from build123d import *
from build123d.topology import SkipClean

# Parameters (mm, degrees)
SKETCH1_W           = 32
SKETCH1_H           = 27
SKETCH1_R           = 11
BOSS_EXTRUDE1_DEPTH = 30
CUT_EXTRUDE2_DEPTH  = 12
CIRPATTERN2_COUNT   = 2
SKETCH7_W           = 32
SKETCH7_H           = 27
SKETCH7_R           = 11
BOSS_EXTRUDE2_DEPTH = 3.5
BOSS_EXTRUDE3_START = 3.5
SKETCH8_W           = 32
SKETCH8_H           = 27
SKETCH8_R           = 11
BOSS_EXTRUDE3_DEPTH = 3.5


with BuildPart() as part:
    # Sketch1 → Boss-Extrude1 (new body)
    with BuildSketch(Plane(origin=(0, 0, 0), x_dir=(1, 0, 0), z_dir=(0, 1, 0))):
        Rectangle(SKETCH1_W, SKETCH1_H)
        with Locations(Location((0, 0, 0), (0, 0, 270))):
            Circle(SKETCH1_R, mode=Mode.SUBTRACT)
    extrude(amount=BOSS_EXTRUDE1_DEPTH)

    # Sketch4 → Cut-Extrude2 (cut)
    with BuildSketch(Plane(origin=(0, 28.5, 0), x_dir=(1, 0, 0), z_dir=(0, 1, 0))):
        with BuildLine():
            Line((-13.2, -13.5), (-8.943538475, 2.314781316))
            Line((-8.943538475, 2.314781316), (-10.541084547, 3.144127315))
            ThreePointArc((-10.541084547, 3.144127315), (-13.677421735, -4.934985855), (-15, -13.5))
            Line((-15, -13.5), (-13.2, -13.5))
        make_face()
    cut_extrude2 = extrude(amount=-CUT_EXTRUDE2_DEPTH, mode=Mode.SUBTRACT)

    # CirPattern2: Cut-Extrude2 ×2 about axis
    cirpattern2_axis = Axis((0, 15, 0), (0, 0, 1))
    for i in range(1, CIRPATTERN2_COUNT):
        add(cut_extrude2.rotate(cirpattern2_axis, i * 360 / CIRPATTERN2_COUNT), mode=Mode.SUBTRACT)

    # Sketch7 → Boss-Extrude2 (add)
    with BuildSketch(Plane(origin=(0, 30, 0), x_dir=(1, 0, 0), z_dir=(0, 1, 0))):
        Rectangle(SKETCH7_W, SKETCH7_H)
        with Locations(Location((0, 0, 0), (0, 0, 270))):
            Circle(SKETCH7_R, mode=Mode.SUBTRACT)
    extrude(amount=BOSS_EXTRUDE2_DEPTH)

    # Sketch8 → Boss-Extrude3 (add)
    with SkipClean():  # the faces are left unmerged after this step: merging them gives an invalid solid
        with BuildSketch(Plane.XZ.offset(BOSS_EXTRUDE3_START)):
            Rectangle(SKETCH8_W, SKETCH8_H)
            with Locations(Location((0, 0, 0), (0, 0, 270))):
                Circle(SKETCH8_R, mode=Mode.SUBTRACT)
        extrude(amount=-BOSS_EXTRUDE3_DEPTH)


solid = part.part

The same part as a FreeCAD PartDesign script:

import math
import FreeCAD as App
import Part
import Sketcher
from FreeCAD import Vector


def add_polygon(sketch, points):
    """Adds a closed chain of lines whose ends are joined by coincident constraints."""
    first, n = sketch.GeometryCount, len(points)
    for a, b in zip(points, points[1:] + points[:1]):
        sketch.addGeometry(Part.LineSegment(App.Vector(*a, 0), App.Vector(*b, 0)), False)
    for i in range(n):
        sketch.addConstraint(Sketcher.Constraint("Coincident", first + i, 2, first + (i + 1) % n, 1))

doc = App.newDocument("Part")
params = doc.addObject("Spreadsheet::Sheet", "Params")
for row, (alias, value) in enumerate([
    ("sketch1_diameter", "22 mm"),
    ("sketch1_width", "32 mm"),
    ("sketch1_height", "27 mm"),
    ("pad1_length", "30 mm"),
    ("sketch2_radius", "40 mm"),
    ("sketch2_width", "1.8 mm"),
    ("pocket1_length", "12 mm"),
    ("sketch3_diameter", "22 mm"),
    ("sketch3_width", "32 mm"),
    ("sketch3_height", "27 mm"),
    ("pad2_length", "3.5 mm"),
    ("sketch4_diameter", "22 mm"),
    ("sketch4_width", "32 mm"),
    ("sketch4_height", "27 mm"),
    ("pad3_length", "3.5 mm"),
], start=1):
    params.set(f"A{row}", alias)
    params.set(f"B{row}", "=" + value)
    params.setAlias(f"B{row}", alias)

body = doc.addObject("PartDesign::Body", "Body")

sketch1 = doc.addObject("Sketcher::SketchObject", "Sketch")
body.addObject(sketch1)
sketch1.AttachmentSupport = (doc.XZ_Plane, [""])
sketch1.MapMode = "FlatFace"
add_polygon(sketch1, [(-16, -14), (-16, 14), (16, 14), (16, -14)])
sketch1.addGeometry(Part.Circle(Vector(0, 0, 0), Vector(0, 0, 1), 11), False)
sketch1.addConstraint([
    Sketcher.Constraint("Vertical", 0),
    Sketcher.Constraint("Horizontal", 1),
    Sketcher.Constraint("Vertical", 2),
    Sketcher.Constraint("Horizontal", 3),
    Sketcher.Constraint("Coincident", 4, 3, -1, 1),
    Sketcher.Constraint("Symmetric", 0, 2, 2, 2, -1, 1),
    Sketcher.Constraint("Diameter", 4, 22.0),
    Sketcher.Constraint("DistanceX", 1, 1, 1, 2, 32.0),
    Sketcher.Constraint("DistanceY", 0, 1, 0, 2, 27.0),
])
sketch1.setExpression("Constraints[10]", "Params.sketch1_diameter")
sketch1.setExpression("Constraints[11]", "Params.sketch1_width")
sketch1.setExpression("Constraints[12]", "Params.sketch1_height")
pad1 = doc.addObject("PartDesign::Pad", "Pad")
body.addObject(pad1)
pad1.Profile = sketch1
pad1.setExpression("Length", "Params.pad1_length")
pad1.Reversed = True

sketch2 = doc.addObject("Sketcher::SketchObject", "Sketch001")
body.addObject(sketch2)
sketch2.AttachmentSupport = (doc.XZ_Plane, [""])
sketch2.MapMode = "FlatFace"
sketch2.AttachmentOffset = App.Placement(Vector(0, 0, -28.5), App.Rotation())
sketch2.addGeometry([
    Part.LineSegment(Vector(-13.2, 13.5, 0), Vector(-8.9, -2.3, 0)),
    Part.LineSegment(Vector(-8.9, -2.3, 0), Vector(-10.5, -3.1, 0)),
    Part.ArcOfCircle(Part.Circle(Vector(25, 15.3, 0), Vector(0, 0, 1), 40), math.radians(-177), math.radians(-153)),
    Part.LineSegment(Vector(-15, 13.5, 0), Vector(-13.2, 13.5, 0)),
], False)
sketch2.addConstraint([
    Sketcher.Constraint("Coincident", 0, 2, 1, 1),
    Sketcher.Constraint("Coincident", 1, 2, 2, 2),
    Sketcher.Constraint("Coincident", 2, 1, 3, 1),
    Sketcher.Constraint("Coincident", 3, 2, 0, 1),
    Sketcher.Constraint("Horizontal", 3),
    Sketcher.Constraint("Radius", 2, 40.0),
    Sketcher.Constraint("DistanceX", 3, 1, 3, 2, 1.8),
    Sketcher.Constraint("DistanceX", 2, 1, -1, 1, 15.0),
    Sketcher.Constraint("DistanceY", -1, 1, 2, 1, 13.5),
    Sketcher.Constraint("DistanceY", 1, 2, 2, 3, 18.430001),
    Sketcher.Constraint("Distance", 0, 16.377569),
    Sketcher.Constraint("Distance", 1, 1.799991),
    Sketcher.Constraint("DistanceX", 0, 2, -1, 1, 8.943538),
])
sketch2.setExpression("Constraints[5]", "Params.sketch2_radius")
sketch2.setExpression("Constraints[6]", "Params.sketch2_width")
pocket1 = doc.addObject("PartDesign::Pocket", "Pocket")
body.addObject(pocket1)
pocket1.Profile = sketch2
pocket1.setExpression("Length", "Params.pocket1_length")
pocket1.Reversed = True
doc.recompute()

datumline = doc.addObject("PartDesign::Line", "DatumLine")
body.addObject(datumline)
datumline.Placement = App.Placement(Vector(0, 15, 0), App.Rotation(Vector(0, 0, 1), Vector(0, 0, 1)))
polarpattern = doc.addObject("PartDesign::PolarPattern", "PolarPattern")
body.addObject(polarpattern)
polarpattern.Originals = [pocket1]
polarpattern.Axis = (datumline, [""])
polarpattern.Angle = 360
polarpattern.Occurrences = 2
body.Tip = polarpattern

sketch3 = doc.addObject("Sketcher::SketchObject", "Sketch002")
body.addObject(sketch3)
sketch3.AttachmentSupport = (doc.XZ_Plane, [""])
sketch3.MapMode = "FlatFace"
sketch3.AttachmentOffset = App.Placement(Vector(0, 0, -30), App.Rotation())
add_polygon(sketch3, [(-16, -14), (-16, 14), (16, 14), (16, -14)])
sketch3.addGeometry(Part.Circle(Vector(0, 0, 0), Vector(0, 0, 1), 11), False)
sketch3.addConstraint([
    Sketcher.Constraint("Vertical", 0),
    Sketcher.Constraint("Horizontal", 1),
    Sketcher.Constraint("Vertical", 2),
    Sketcher.Constraint("Horizontal", 3),
    Sketcher.Constraint("Coincident", 4, 3, -1, 1),
    Sketcher.Constraint("Symmetric", 0, 2, 2, 2, -1, 1),
    Sketcher.Constraint("Diameter", 4, 22.0),
    Sketcher.Constraint("DistanceX", 1, 1, 1, 2, 32.0),
    Sketcher.Constraint("DistanceY", 0, 1, 0, 2, 27.0),
])
sketch3.setExpression("Constraints[10]", "Params.sketch3_diameter")
sketch3.setExpression("Constraints[11]", "Params.sketch3_width")
sketch3.setExpression("Constraints[12]", "Params.sketch3_height")
pad2 = doc.addObject("PartDesign::Pad", "Pad001")
body.addObject(pad2)
pad2.Profile = sketch3
pad2.setExpression("Length", "Params.pad2_length")
pad2.Reversed = True

sketch4 = doc.addObject("Sketcher::SketchObject", "Sketch003")
body.addObject(sketch4)
sketch4.AttachmentSupport = (doc.XZ_Plane, [""])
sketch4.MapMode = "FlatFace"
sketch4.AttachmentOffset = App.Placement(Vector(0, 0, 3.5), App.Rotation())
add_polygon(sketch4, [(-16, 14), (-16, -14), (16, -14), (16, 14)])
sketch4.addGeometry(Part.Circle(Vector(0, 0, 0), Vector(0, 0, 1), 11), False)
sketch4.addConstraint([
    Sketcher.Constraint("Vertical", 0),
    Sketcher.Constraint("Horizontal", 1),
    Sketcher.Constraint("Vertical", 2),
    Sketcher.Constraint("Horizontal", 3),
    Sketcher.Constraint("Coincident", 4, 3, -1, 1),
    Sketcher.Constraint("Symmetric", 0, 2, 2, 2, -1, 1),
    Sketcher.Constraint("Diameter", 4, 22.0),
    Sketcher.Constraint("DistanceX", 1, 1, 1, 2, 32.0),
    Sketcher.Constraint("DistanceY", 0, 2, 0, 1, 27.0),
])
sketch4.setExpression("Constraints[10]", "Params.sketch4_diameter")
sketch4.setExpression("Constraints[11]", "Params.sketch4_width")
sketch4.setExpression("Constraints[12]", "Params.sketch4_height")
pad3 = doc.addObject("PartDesign::Pad", "Pad002")
body.addObject(pad3)
pad3.Profile = sketch4
pad3.setExpression("Length", "Params.pad3_length")
pad3.Reversed = True

doc.recompute()
